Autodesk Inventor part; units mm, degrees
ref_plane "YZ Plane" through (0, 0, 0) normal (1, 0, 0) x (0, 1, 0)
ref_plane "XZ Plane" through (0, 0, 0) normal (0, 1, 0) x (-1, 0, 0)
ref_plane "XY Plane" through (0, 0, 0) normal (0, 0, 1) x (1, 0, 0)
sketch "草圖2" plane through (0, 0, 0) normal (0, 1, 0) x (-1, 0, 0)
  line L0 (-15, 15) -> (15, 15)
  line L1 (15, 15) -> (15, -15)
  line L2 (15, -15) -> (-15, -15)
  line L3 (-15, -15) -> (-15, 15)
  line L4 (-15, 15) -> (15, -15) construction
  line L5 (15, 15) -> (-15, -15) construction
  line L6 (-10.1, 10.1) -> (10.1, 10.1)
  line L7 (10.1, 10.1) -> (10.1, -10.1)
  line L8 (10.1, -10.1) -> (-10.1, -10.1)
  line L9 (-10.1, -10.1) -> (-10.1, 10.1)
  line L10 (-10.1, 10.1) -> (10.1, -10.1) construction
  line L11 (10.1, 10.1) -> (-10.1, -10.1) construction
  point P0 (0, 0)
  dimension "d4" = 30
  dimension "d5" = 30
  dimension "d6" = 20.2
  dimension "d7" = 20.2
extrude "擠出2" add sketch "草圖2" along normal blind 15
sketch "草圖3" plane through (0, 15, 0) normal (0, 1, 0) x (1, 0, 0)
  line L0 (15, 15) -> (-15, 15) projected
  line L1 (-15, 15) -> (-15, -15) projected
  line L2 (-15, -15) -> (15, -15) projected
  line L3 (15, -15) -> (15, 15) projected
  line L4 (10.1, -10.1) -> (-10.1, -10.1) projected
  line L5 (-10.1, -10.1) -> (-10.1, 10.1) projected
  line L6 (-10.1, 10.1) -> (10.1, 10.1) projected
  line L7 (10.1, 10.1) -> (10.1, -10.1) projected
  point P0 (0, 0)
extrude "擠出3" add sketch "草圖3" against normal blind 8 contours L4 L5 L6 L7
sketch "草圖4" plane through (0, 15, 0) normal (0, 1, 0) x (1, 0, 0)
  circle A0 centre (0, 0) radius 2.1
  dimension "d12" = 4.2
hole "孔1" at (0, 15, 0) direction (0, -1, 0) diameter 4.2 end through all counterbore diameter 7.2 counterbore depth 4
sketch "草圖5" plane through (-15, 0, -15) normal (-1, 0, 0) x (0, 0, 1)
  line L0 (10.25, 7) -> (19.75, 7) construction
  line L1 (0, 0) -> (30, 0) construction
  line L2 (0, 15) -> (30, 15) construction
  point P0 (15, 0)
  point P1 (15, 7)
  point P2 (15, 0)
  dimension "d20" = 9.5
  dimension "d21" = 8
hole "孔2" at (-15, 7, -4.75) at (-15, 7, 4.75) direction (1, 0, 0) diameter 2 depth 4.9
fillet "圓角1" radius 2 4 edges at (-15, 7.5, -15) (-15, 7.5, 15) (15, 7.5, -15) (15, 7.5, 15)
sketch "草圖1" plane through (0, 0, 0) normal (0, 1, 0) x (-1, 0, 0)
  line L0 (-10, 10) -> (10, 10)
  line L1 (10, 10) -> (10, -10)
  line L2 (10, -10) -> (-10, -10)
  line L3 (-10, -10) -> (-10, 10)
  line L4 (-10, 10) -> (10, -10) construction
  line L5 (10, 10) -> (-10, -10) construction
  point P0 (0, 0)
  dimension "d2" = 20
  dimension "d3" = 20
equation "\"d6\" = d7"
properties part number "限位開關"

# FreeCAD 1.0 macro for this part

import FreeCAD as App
import Part
import Sketcher

V = App.Vector


def edges_at(feature, points):
    """Names of the edges that pass closest to the given points."""
    edges = feature.Shape.Edges
    near = lambda p: min(range(len(edges)), key=lambda i: edges[i].distToShape(Part.Vertex(*p))[0])
    return sorted({f"Edge{near(p) + 1}" for p in points})


def add_polygon(sketch, points):
    """Adds a closed chain of lines whose ends are joined by coincident constraints."""
    first, n = sketch.GeometryCount, len(points)
    for a, b in zip(points, points[1:] + points[:1]):
        sketch.addGeometry(Part.LineSegment(App.Vector(*a, 0), App.Vector(*b, 0)), False)
    for i in range(n):
        sketch.addConstraint(Sketcher.Constraint("Coincident", first + i, 2, first + (i + 1) % n, 1))

doc = App.newDocument("Part")
body = doc.addObject("PartDesign::Body", "Body")

sketch1 = body.newObject("Sketcher::SketchObject", "Sketch")
sketch1.AttachmentSupport = (doc.getObject("XZ_Plane"), [""])
sketch1.MapMode = "FlatFace"
add_polygon(sketch1, [(-15, 15), (15, 15), (15, -15), (-15, -15)])
add_polygon(sketch1, [(10, -10), (10, 10), (-10, 10), (-10, -10)])
sketch1.addConstraint(Sketcher.Constraint("Horizontal", 0))
sketch1.addConstraint(Sketcher.Constraint("Vertical", 1))
sketch1.addConstraint(Sketcher.Constraint("Horizontal", 2))
sketch1.addConstraint(Sketcher.Constraint("Vertical", 3))
sketch1.addConstraint(Sketcher.Constraint("Vertical", 4))
sketch1.addConstraint(Sketcher.Constraint("Horizontal", 5))
sketch1.addConstraint(Sketcher.Constraint("Vertical", 6))
sketch1.addConstraint(Sketcher.Constraint("Horizontal", 7))
sketch1.addConstraint(Sketcher.Constraint("Symmetric", 0, 2, 2, 2, -1, 1))
sketch1.addConstraint(Sketcher.Constraint("Symmetric", 4, 2, 6, 2, -1, 1))
sketch1.addConstraint(Sketcher.Constraint("Equal", 2, 1))
sketch1.addConstraint(Sketcher.Constraint("Equal", 7, 4))
sketch1.addConstraint(Sketcher.Constraint("DistanceX", 0, 1, 0, 2, 30.0))
sketch1.addConstraint(Sketcher.Constraint("DistanceX", 5, 2, 5, 1, 20.2))
pad1 = body.newObject("PartDesign::Pad", "Pad")
pad1.Profile = sketch1
pad1.Length = 15
pad1.Reversed = True

sketch2 = body.newObject("Sketcher::SketchObject", "Sketch001")
sketch2.AttachmentSupport = (doc.getObject("XZ_Plane"), [""])
sketch2.MapMode = "FlatFace"
sketch2.AttachmentOffset = App.Placement(V(0, 0, -15), App.Rotation())
add_polygon(sketch2, [(-10, 10), (10, 10), (10, -10), (-10, -10)])
sketch2.addConstraint(Sketcher.Constraint("Horizontal", 0))
sketch2.addConstraint(Sketcher.Constraint("Vertical", 1))
sketch2.addConstraint(Sketcher.Constraint("Horizontal", 2))
sketch2.addConstraint(Sketcher.Constraint("Vertical", 3))
sketch2.addConstraint(Sketcher.Constraint("Symmetric", 0, 2, 2, 2, -1, 1))
sketch2.addConstraint(Sketcher.Constraint("Equal", 2, 1))
sketch2.addConstraint(Sketcher.Constraint("DistanceX", 0, 1, 0, 2, 20.2))
pad2 = body.newObject("PartDesign::Pad", "Pad001")
pad2.Profile = sketch2
pad2.Length = 8

sketch3 = body.newObject("Sketcher::SketchObject", "Sketch002")
sketch3.AttachmentSupport = (doc.getObject("XZ_Plane"), [""])
sketch3.MapMode = "FlatFace"
sketch3.AttachmentOffset = App.Placement(V(0, 0, -15), App.Rotation())
sketch3.addGeometry(Part.Circle(V(0, 0, 0), V(0, 0, 1), 2.1), False)
sketch3.addConstraint(Sketcher.Constraint("Coincident", 0, 3, -1, 1))
sketch3.addConstraint(Sketcher.Constraint("Diameter", 0, 4.2))
doc.recompute()
hole = body.newObject("PartDesign::Hole", "Hole")
hole.Profile = sketch3
hole.ThreadType = "None"
hole.Diameter = 4.2
hole.DepthType = "ThroughAll"
hole.HoleCutType = "Counterbore"
hole.HoleCutDiameter = 7.2
hole.HoleCutDepth = 4
hole.Reversed = True

sketch4 = body.newObject("Sketcher::SketchObject", "Sketch003")
sketch4.AttachmentSupport = (doc.getObject("YZ_Plane"), [""])
sketch4.MapMode = "FlatFace"
sketch4.AttachmentOffset = App.Placement(V(0, 0, -15), App.Rotation())
sketch4.addGeometry(Part.Circle(V(7, -4.8, 0), V(0, 0, 1), 1), False)
sketch4.addGeometry(Part.Circle(V(7, 4.8, 0), V(0, 0, 1), 1), False)
sketch4.addConstraint(Sketcher.Constraint("Equal", 0, 1))
sketch4.addConstraint(Sketcher.Constraint("Symmetric", 0, 3, 1, 3, -1))
sketch4.addConstraint(Sketcher.Constraint("Diameter", 0, 2.0))
sketch4.addConstraint(Sketcher.Constraint("DistanceX", -1, 1, 0, 3, 7.0))
sketch4.addConstraint(Sketcher.Constraint("DistanceY", 0, 3, 1, 3, 9.5))
doc.recompute()
hole2 = body.newObject("PartDesign::Hole", "Hole001")
hole2.Profile = sketch4
hole2.ThreadType = "None"
hole2.Diameter = 2
hole2.DepthType = "Dimension"
hole2.Depth = 4.9
hole2.DrillPoint = "Flat"
hole2.Reversed = True
doc.recompute()

fillet = body.newObject("PartDesign::Fillet", "Fillet")
fillet.Base = (hole2, edges_at(hole2, [
    (-15, 7.5, -15),
    (-15, 7.5, 15),
    (15, 7.5, -15),
    (15, 7.5, 15),
]))
fillet.Radius = 2

doc.recompute()
